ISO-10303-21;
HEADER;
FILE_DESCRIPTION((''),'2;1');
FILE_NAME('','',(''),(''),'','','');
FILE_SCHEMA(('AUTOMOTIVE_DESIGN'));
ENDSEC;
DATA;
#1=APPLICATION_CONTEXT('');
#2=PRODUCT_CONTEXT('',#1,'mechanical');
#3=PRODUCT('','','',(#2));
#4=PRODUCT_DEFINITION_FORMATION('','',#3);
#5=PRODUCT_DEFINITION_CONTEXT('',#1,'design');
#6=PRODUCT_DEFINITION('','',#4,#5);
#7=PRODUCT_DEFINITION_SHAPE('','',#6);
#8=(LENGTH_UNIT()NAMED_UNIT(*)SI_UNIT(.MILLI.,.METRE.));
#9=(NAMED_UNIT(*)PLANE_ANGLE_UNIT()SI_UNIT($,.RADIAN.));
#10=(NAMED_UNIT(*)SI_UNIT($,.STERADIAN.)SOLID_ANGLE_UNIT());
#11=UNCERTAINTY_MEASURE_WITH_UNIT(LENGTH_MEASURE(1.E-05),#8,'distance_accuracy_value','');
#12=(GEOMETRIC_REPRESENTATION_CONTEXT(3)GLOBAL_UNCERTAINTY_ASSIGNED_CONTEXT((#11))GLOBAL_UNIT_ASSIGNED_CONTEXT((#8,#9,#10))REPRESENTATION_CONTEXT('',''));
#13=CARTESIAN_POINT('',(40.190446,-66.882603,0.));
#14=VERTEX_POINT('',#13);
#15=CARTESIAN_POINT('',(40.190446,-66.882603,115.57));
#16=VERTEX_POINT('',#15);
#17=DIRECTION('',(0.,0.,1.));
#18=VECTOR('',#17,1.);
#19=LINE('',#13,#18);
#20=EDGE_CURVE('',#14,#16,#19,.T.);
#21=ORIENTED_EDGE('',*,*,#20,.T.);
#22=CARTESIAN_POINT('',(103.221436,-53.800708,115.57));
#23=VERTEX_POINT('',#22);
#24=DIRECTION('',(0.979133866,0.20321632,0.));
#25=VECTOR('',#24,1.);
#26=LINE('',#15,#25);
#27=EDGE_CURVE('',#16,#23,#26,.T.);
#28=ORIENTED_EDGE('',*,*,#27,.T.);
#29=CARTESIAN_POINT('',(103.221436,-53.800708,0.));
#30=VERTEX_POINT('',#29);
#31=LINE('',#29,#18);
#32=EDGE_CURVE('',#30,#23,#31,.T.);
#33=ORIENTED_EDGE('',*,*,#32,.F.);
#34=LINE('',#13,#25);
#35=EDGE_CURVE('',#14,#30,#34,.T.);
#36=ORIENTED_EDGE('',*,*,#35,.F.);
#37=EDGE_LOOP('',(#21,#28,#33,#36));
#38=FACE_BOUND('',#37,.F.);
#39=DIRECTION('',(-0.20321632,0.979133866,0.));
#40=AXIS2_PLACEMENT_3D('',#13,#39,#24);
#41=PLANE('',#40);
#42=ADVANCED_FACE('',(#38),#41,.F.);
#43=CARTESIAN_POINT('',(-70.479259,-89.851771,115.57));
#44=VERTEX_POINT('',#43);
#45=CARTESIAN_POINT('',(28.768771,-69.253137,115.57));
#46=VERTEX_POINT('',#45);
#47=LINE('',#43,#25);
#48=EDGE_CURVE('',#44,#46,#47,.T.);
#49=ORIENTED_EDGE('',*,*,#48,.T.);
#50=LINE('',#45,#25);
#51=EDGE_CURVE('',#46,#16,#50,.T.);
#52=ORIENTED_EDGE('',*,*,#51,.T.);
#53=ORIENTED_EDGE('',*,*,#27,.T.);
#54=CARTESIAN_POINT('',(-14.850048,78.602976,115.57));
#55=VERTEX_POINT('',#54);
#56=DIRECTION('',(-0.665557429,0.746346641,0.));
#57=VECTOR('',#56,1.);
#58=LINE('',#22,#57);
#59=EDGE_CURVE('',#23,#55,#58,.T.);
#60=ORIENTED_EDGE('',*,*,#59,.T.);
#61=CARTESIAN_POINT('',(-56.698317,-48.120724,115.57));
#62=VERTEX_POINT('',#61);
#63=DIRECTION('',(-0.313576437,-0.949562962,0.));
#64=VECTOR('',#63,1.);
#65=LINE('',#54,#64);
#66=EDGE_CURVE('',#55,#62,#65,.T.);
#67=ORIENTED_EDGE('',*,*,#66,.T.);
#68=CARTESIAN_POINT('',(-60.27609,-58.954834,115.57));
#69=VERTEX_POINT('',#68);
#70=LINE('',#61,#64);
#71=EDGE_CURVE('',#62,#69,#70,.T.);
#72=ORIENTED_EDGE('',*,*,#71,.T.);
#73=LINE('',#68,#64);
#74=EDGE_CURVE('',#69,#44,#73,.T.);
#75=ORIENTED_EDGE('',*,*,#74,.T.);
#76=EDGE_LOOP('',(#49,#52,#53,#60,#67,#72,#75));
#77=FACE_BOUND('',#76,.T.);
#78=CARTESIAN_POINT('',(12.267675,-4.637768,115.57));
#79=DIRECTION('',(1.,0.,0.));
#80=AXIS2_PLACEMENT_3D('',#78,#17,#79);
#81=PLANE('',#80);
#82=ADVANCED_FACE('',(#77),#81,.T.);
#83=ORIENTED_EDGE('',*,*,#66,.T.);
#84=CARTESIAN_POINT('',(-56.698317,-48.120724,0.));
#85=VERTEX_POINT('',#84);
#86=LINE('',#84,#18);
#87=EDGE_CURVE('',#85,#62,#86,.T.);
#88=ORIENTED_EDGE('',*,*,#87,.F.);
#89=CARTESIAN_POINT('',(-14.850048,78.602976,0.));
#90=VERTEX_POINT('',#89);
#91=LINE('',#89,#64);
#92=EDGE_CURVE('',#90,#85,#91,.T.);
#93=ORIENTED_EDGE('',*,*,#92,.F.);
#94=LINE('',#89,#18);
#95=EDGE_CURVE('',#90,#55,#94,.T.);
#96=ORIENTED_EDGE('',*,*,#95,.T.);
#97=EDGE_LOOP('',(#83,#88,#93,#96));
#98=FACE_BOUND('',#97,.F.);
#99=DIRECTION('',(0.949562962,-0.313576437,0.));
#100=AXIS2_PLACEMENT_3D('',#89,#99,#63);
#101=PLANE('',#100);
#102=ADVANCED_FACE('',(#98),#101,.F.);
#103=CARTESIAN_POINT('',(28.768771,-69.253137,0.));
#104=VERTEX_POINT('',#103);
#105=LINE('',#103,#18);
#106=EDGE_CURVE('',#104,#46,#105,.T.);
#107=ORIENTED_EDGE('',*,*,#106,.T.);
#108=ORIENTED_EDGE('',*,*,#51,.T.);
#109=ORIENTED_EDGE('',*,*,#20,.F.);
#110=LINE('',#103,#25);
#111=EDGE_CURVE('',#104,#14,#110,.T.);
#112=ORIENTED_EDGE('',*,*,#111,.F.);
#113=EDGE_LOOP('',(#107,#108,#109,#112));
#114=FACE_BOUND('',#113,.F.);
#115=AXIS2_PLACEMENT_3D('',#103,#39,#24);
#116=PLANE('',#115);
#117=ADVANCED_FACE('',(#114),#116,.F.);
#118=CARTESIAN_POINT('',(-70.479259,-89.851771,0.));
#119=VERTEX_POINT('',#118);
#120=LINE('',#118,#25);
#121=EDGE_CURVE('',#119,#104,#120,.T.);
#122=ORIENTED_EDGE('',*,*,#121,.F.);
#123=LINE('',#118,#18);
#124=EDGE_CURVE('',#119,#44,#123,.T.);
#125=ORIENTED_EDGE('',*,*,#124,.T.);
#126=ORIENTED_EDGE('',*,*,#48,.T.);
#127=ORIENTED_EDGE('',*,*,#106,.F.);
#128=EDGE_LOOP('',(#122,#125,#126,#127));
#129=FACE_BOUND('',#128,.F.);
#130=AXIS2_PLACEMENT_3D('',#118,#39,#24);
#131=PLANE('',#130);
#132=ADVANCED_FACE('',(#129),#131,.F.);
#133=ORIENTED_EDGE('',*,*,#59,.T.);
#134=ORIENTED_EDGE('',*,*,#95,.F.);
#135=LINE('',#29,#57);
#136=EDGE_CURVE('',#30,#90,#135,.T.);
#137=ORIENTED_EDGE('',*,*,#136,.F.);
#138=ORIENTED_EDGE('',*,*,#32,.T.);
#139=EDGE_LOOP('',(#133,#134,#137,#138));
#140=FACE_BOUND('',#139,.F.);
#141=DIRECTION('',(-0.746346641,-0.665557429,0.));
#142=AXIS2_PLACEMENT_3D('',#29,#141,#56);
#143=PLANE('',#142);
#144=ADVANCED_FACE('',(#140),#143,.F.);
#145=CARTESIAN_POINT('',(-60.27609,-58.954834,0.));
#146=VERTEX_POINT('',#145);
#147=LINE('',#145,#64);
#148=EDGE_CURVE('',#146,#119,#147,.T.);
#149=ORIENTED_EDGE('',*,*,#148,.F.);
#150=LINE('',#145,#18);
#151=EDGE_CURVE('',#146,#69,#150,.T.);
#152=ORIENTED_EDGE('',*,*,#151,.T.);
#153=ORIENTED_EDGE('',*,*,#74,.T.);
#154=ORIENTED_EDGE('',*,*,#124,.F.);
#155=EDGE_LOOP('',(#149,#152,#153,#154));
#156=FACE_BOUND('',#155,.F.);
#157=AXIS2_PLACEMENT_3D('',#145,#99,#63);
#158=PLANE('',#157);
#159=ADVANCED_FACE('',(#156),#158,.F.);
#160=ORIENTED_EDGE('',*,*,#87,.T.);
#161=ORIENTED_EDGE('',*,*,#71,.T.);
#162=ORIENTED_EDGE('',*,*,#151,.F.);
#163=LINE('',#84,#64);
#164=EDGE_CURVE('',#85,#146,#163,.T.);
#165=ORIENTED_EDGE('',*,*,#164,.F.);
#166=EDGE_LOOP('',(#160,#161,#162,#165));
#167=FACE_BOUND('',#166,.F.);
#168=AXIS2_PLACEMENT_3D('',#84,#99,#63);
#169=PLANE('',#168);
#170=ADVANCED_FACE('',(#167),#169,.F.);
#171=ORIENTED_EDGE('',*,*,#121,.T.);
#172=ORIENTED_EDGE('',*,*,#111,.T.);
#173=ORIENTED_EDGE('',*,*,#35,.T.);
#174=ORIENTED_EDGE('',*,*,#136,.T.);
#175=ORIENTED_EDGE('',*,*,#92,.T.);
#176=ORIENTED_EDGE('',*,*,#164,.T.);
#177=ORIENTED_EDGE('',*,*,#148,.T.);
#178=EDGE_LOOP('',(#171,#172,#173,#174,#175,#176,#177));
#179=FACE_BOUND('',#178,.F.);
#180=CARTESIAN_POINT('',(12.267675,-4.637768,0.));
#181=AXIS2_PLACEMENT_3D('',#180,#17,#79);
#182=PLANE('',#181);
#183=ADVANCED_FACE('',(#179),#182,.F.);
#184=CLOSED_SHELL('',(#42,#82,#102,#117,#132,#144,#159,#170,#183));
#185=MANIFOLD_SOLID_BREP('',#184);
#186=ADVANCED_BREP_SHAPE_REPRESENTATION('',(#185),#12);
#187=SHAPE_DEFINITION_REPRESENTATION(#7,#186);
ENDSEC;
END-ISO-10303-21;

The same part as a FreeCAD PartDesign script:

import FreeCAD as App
import Part
import Sketcher
from FreeCAD import Vector
Q = App.Units.Quantity


def add_polygon(sketch, points):
    """Adds a closed chain of lines whose ends are joined by coincident constraints."""
    first, n = sketch.GeometryCount, len(points)
    for a, b in zip(points, points[1:] + points[:1]):
        sketch.addGeometry(Part.LineSegment(App.Vector(*a, 0), App.Vector(*b, 0)), False)
    for i in range(n):
        sketch.addConstraint(Sketcher.Constraint("Coincident", first + i, 2, first + (i + 1) % n, 1))

doc = App.newDocument("Part")
body = doc.addObject("PartDesign::Body", "Body")

sketch1 = doc.addObject("Sketcher::SketchObject", "Sketch")
body.addObject(sketch1)
sketch1.AttachmentSupport = (doc.XY_Plane, [""])
sketch1.MapMode = "FlatFace"
add_polygon(sketch1, [(103.221436, -53.800708), (-14.850048, 78.602976), (-56.698317, -48.120724), (-60.27609, -58.954834), (-70.479259, -89.851771), (28.768771, -69.253137), (40.190446, -66.882603)])
sketch1.addConstraint([
    Sketcher.Constraint("Parallel", 1, 2),
    Sketcher.Constraint("Parallel", 2, 3),
    Sketcher.Constraint("Parallel", 4, 5),
    Sketcher.Constraint("Parallel", 5, 6),
    Sketcher.Constraint("DistanceY", 1, 2, 0, 2, 126.7237),
    Sketcher.Constraint("Distance", 3, 32.53806),
    Sketcher.Constraint("Distance", 5, 11.66508),
    Sketcher.Constraint("Distance", 6, 64.374231),
    Sketcher.Constraint("DistanceX", 2, 2, -1, 1, 60.27609),
    Sketcher.Constraint("DistanceX", 3, 2, -1, 1, 70.479259),
    Sketcher.Constraint("DistanceY", 3, 2, -1, 1, 89.851771),
    Sketcher.Constraint("DistanceX", -1, 1, 4, 2, 28.768771),
    Sketcher.Constraint("DistanceY", 6, 2, -1, 1, 53.800708),
    Sketcher.Constraint("DistanceY", 2, 2, 1, 2, 10.83411),
])
pad1 = doc.addObject("PartDesign::Pad", "Pad")
body.addObject(pad1)
pad1.Profile = sketch1
pad1.Length = Q("4.55 in")

doc.recompute()
